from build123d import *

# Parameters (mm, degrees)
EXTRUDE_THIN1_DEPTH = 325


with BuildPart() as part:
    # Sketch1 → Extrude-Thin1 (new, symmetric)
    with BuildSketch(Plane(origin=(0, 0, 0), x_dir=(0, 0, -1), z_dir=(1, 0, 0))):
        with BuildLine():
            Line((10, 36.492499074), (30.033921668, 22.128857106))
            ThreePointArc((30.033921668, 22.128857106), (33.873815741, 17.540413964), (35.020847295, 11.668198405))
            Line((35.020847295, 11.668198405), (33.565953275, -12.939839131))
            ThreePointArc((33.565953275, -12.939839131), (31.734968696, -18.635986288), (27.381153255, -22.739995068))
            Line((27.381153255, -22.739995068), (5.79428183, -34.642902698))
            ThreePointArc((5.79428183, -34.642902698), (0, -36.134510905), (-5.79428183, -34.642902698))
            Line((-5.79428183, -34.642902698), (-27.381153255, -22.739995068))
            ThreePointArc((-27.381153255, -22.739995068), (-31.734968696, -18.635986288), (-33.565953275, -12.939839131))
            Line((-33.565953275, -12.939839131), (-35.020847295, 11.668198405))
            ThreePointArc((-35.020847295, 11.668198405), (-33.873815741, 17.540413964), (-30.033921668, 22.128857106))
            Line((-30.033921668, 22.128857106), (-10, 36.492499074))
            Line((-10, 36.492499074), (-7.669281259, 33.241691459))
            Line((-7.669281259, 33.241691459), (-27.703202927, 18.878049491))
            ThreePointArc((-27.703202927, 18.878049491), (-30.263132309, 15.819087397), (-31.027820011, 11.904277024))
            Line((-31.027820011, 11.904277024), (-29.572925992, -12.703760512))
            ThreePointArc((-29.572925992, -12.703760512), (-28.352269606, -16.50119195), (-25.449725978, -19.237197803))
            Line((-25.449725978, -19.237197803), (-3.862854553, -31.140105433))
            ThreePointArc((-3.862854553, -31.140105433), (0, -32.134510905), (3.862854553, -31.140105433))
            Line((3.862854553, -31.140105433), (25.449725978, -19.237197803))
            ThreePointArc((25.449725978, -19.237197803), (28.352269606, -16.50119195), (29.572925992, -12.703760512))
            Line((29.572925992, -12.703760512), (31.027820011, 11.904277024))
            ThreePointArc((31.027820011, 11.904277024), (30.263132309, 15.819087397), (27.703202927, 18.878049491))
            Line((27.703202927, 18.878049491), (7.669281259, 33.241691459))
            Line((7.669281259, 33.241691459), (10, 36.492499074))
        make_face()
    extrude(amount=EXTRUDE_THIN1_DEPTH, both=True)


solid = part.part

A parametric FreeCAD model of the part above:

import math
import FreeCAD as App
import Part
import Sketcher

V = App.Vector

doc = App.newDocument("Part")
body = doc.addObject("PartDesign::Body", "Body")

sketch1 = doc.addObject("Sketcher::SketchObject", "Sketch")
body.addObject(sketch1)
sketch1.AttachmentSupport = (doc.YZ_Plane, [""])
sketch1.MapMode = "FlatFace"
sketch1.addGeometry(Part.LineSegment(V(22.1, -30, 0), V(36.5, -10, 0)), False)
sketch1.addGeometry(Part.LineSegment(V(36.5, -10, 0), V(33.2, -7.7, 0)), False)
sketch1.addGeometry(Part.LineSegment(V(33.2, -7.7, 0), V(18.9, -27.7, 0)), False)
sketch1.addGeometry(Part.ArcOfCircle(Part.Circle(V(12.4, -23, 0), V(0, 0, 1), 8), math.radians(-93), math.radians(-36)), False)
sketch1.addGeometry(Part.LineSegment(V(11.9, -31, 0), V(-12.7, -29.6, 0)), False)
sketch1.addGeometry(Part.ArcOfCircle(Part.Circle(V(-12.2, -21.6, 0), V(0, 0, 1), 8), math.radians(-151), math.radians(-93)), False)
sketch1.addGeometry(Part.LineSegment(V(-19.2, -25.4, 0), V(-31.1, -3.9, 0)), False)
sketch1.addGeometry(Part.ArcOfCircle(Part.Circle(V(-24.1, 0, 0), V(0, 0, 1), 8), math.radians(151), math.radians(209)), False)
sketch1.addGeometry(Part.LineSegment(V(-31.1, 3.9, 0), V(-19.2, 25.4, 0)), False)
sketch1.addGeometry(Part.ArcOfCircle(Part.Circle(V(-12.2, 21.6, 0), V(0, 0, 1), 8), math.radians(93), math.radians(151)), False)
sketch1.addGeometry(Part.LineSegment(V(-12.7, 29.6, 0), V(11.9, 31, 0)), False)
sketch1.addGeometry(Part.ArcOfCircle(Part.Circle(V(12.4, 23, 0), V(0, 0, 1), 8), math.radians(36), math.radians(93)), False)
sketch1.addGeometry(Part.LineSegment(V(18.9, 27.7, 0), V(33.2, 7.7, 0)), False)
sketch1.addGeometry(Part.LineSegment(V(33.2, 7.7, 0), V(36.5, 10, 0)), False)
sketch1.addGeometry(Part.LineSegment(V(36.5, 10, 0), V(22.1, 30, 0)), False)
sketch1.addGeometry(Part.ArcOfCircle(Part.Circle(V(12.4, 23, 0), V(0, 0, 1), 12), math.radians(36), math.radians(93)), False)
sketch1.addGeometry(Part.LineSegment(V(11.7, 35, 0), V(-12.9, 33.6, 0)), False)
sketch1.addGeometry(Part.ArcOfCircle(Part.Circle(V(-12.2, 21.6, 0), V(0, 0, 1), 12), math.radians(93), math.radians(151)), False)
sketch1.addGeometry(Part.LineSegment(V(-22.7, 27.4, 0), V(-34.6, 5.8, 0)), False)
sketch1.addGeometry(Part.ArcOfCircle(Part.Circle(V(-24.1, 0, 0), V(0, 0, 1), 12), math.radians(151), math.radians(209)), False)
sketch1.addGeometry(Part.LineSegment(V(-34.6, -5.8, 0), V(-22.7, -27.4, 0)), False)
sketch1.addGeometry(Part.ArcOfCircle(Part.Circle(V(-12.2, -21.6, 0), V(0, 0, 1), 12), math.radians(-151), math.radians(-93)), False)
sketch1.addGeometry(Part.LineSegment(V(-12.9, -33.6, 0), V(11.7, -35, 0)), False)
sketch1.addGeometry(Part.ArcOfCircle(Part.Circle(V(12.4, -23, 0), V(0, 0, 1), 12), math.radians(-93), math.radians(-36)), False)
sketch1.addConstraint(Sketcher.Constraint("Coincident", 0, 2, 1, 1))
sketch1.addConstraint(Sketcher.Constraint("Coincident", 1, 2, 2, 1))
sketch1.addConstraint(Sketcher.Constraint("Tangent", 2, 2, 3, 2))
sketch1.addConstraint(Sketcher.Constraint("Tangent", 3, 1, 4, 1))
sketch1.addConstraint(Sketcher.Constraint("Tangent", 4, 2, 5, 2))
sketch1.addConstraint(Sketcher.Constraint("Tangent", 5, 1, 6, 1))
sketch1.addConstraint(Sketcher.Constraint("Tangent", 6, 2, 7, 2))
sketch1.addConstraint(Sketcher.Constraint("Tangent", 7, 1, 8, 1))
sketch1.addConstraint(Sketcher.Constraint("Tangent", 8, 2, 9, 2))
sketch1.addConstraint(Sketcher.Constraint("Tangent", 9, 1, 10, 1))
sketch1.addConstraint(Sketcher.Constraint("Tangent", 10, 2, 11, 2))
sketch1.addConstraint(Sketcher.Constraint("Tangent", 11, 1, 12, 1))
sketch1.addConstraint(Sketcher.Constraint("Coincident", 12, 2, 13, 1))
sketch1.addConstraint(Sketcher.Constraint("Coincident", 13, 2, 14, 1))
sketch1.addConstraint(Sketcher.Constraint("Tangent", 14, 2, 15, 1))
sketch1.addConstraint(Sketcher.Constraint("Tangent", 15, 2, 16, 1))
sketch1.addConstraint(Sketcher.Constraint("Tangent", 16, 2, 17, 1))
sketch1.addConstraint(Sketcher.Constraint("Tangent", 17, 2, 18, 1))
sketch1.addConstraint(Sketcher.Constraint("Tangent", 18, 2, 19, 1))
sketch1.addConstraint(Sketcher.Constraint("Tangent", 19, 2, 20, 1))
sketch1.addConstraint(Sketcher.Constraint("Tangent", 20, 2, 21, 1))
sketch1.addConstraint(Sketcher.Constraint("Tangent", 21, 2, 22, 1))
sketch1.addConstraint(Sketcher.Constraint("Tangent", 22, 2, 23, 1))
sketch1.addConstraint(Sketcher.Constraint("Tangent", 23, 2, 0, 1))
sketch1.addConstraint(Sketcher.Constraint("Coincident", 15, 3, 11, 3))
sketch1.addConstraint(Sketcher.Constraint("Coincident", 17, 3, 9, 3))
sketch1.addConstraint(Sketcher.Constraint("Coincident", 19, 3, 7, 3))
sketch1.addConstraint(Sketcher.Constraint("Coincident", 21, 3, 5, 3))
sketch1.addConstraint(Sketcher.Constraint("Coincident", 23, 3, 3, 3))
sketch1.addConstraint(Sketcher.Constraint("Equal", 3, 5))
sketch1.addConstraint(Sketcher.Constraint("Equal", 5, 7))
sketch1.addConstraint(Sketcher.Constraint("Equal", 7, 9))
sketch1.addConstraint(Sketcher.Constraint("Equal", 9, 11))
sketch1.addConstraint(Sketcher.Constraint("Equal", 15, 17))
sketch1.addConstraint(Sketcher.Constraint("Equal", 17, 19))
sketch1.addConstraint(Sketcher.Constraint("Equal", 19, 21))
sketch1.addConstraint(Sketcher.Constraint("Equal", 21, 23))
sketch1.addConstraint(Sketcher.Constraint("Symmetric", 5, 3, 9, 3, -1))
sketch1.addConstraint(Sketcher.Constraint("Symmetric", 3, 3, 11, 3, -1))
sketch1.addConstraint(Sketcher.Constraint("Symmetric", 1, 2, 12, 2, -1))
sketch1.addConstraint(Sketcher.Constraint("Symmetric", 0, 2, 13, 2, -1))
sketch1.addConstraint(Sketcher.Constraint("PointOnObject", 7, 3, -1))
sketch1.addConstraint(Sketcher.Constraint("Perpendicular", 0, 1))
sketch1.addConstraint(Sketcher.Constraint("Perpendicular", 1, 2))
sketch1.addConstraint(Sketcher.Constraint("Equal", 2, 4))
sketch1.addConstraint(Sketcher.Constraint("Equal", 4, 6))
sketch1.addConstraint(Sketcher.Constraint("Radius", 3, 8.0))
sketch1.addConstraint(Sketcher.Constraint("Radius", 15, 12.0))
sketch1.addConstraint(Sketcher.Constraint("DistanceY", 0, 2, -1, 1, 10.0))
sketch1.addConstraint(Sketcher.Constraint("DistanceX", -1, 1, 0, 2, 36.492499))
sketch1.addConstraint(Sketcher.Constraint("DistanceX", -1, 1, 15, 2, 11.668198))
sketch1.addConstraint(Sketcher.Constraint("DistanceY", 4, 2, 5, 1, 4.1232))
sketch1.addConstraint(Sketcher.Constraint("DistanceY", 14, 2, 10, 2, 0.993898))
pad1 = doc.addObject("PartDesign::Pad", "Pad")
body.addObject(pad1)
pad1.Profile = sketch1
pad1.Length = 650
pad1.Midplane = True

doc.recompute()
